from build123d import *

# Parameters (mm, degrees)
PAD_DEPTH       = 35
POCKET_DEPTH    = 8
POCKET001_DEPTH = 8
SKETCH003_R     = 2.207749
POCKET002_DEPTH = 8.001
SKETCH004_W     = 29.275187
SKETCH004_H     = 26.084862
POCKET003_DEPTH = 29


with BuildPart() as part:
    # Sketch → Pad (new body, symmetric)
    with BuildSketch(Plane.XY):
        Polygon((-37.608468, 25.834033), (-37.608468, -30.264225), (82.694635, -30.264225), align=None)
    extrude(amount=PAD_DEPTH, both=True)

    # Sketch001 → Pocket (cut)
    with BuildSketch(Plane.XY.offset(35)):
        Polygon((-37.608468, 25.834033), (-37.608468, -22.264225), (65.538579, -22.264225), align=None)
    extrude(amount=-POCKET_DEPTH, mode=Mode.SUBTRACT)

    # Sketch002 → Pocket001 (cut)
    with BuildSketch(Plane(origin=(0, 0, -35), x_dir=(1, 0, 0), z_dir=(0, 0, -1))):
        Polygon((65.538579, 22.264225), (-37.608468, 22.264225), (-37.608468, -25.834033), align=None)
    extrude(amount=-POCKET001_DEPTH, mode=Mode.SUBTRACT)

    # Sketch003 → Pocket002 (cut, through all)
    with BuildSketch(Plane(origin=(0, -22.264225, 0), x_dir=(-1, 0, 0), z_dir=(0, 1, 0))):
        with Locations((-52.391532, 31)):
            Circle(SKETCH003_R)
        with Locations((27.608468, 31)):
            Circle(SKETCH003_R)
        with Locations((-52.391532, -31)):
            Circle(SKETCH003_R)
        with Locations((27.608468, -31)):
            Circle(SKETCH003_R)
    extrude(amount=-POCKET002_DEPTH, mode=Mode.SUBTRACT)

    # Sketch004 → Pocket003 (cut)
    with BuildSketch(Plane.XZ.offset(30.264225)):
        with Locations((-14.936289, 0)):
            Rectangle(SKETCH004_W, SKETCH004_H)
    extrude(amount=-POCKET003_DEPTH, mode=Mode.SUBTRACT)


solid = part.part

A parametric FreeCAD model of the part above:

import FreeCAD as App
import Part
import Sketcher
from FreeCAD import Vector
Q = App.Units.Quantity


def add_polygon(sketch, points):
    """Adds a closed chain of lines whose ends are joined by coincident constraints."""
    first, n = sketch.GeometryCount, len(points)
    for a, b in zip(points, points[1:] + points[:1]):
        sketch.addGeometry(Part.LineSegment(App.Vector(*a, 0), App.Vector(*b, 0)), False)
    for i in range(n):
        sketch.addConstraint(Sketcher.Constraint("Coincident", first + i, 2, first + (i + 1) % n, 1))

doc = App.newDocument("Part")
body = doc.addObject("PartDesign::Body", "Body")

# Sketch on XY plane
sketch1 = body.newObject("Sketcher::SketchObject", "Sketch")
sketch1.AttachmentSupport = (doc.getObject("XY_Plane"), [""])
sketch1.MapMode = "FlatFace"
add_polygon(sketch1, [(-38, 26), (-38, -30), (83, -30)])  # lines 0-2
sketch1.addConstraint(Sketcher.Constraint("Vertical", 0))
sketch1.addConstraint(Sketcher.Constraint("Horizontal", 1))
sketch1.addConstraint(Sketcher.Constraint("Angle", 2, Q("155 deg")))
sketch1.addConstraint(Sketcher.Constraint("DistanceX", 1, 1, 1, 2, 120.303103))
sketch1.addConstraint(Sketcher.Constraint("DistanceX", 0, 2, -1, 1, 37.608468))
sketch1.addConstraint(Sketcher.Constraint("DistanceY", 0, 2, -1, 1, 30.264225))
pad1 = body.newObject("PartDesign::Pad", "Pad")
pad1.Profile = sketch1
pad1.Length = 70
pad1.Midplane = True

# Sketch on XY plane
sketch2 = body.newObject("Sketcher::SketchObject", "Sketch001")
sketch2.AttachmentSupport = (doc.getObject("XY_Plane"), [""])
sketch2.MapMode = "FlatFace"
sketch2.AttachmentOffset = App.Placement(Vector(0, 0, 35), App.Rotation())
add_polygon(sketch2, [(-38, 26), (-38, -22), (66, -22)])  # lines 0-2
sketch2.addConstraint(Sketcher.Constraint("Vertical", 0))
sketch2.addConstraint(Sketcher.Constraint("Horizontal", 1))
sketch2.addConstraint(Sketcher.Constraint("Angle", 2, Q("155 deg")))
sketch2.addConstraint(Sketcher.Constraint("DistanceX", 1, 1, 1, 2, 103.147047))
sketch2.addConstraint(Sketcher.Constraint("DistanceX", 0, 2, -1, 1, 37.608468))
sketch2.addConstraint(Sketcher.Constraint("DistanceY", 0, 2, -1, 1, 22.264225))
pocket1 = body.newObject("PartDesign::Pocket", "Pocket")
pocket1.Profile = sketch2
pocket1.Length = 8

# Sketch on XY plane
sketch3 = body.newObject("Sketcher::SketchObject", "Sketch002")
sketch3.AttachmentSupport = (doc.getObject("XY_Plane"), [""])
sketch3.MapMode = "FlatFace"
sketch3.AttachmentOffset = App.Placement(Vector(0, 0, -35), App.Rotation())
add_polygon(sketch3, [(66, -22), (-38, -22), (-38, 26)])  # lines 0-2
sketch3.addConstraint(Sketcher.Constraint("Horizontal", 0))
sketch3.addConstraint(Sketcher.Constraint("Vertical", 1))
sketch3.addConstraint(Sketcher.Constraint("Angle", 2, Q("-25 deg")))
sketch3.addConstraint(Sketcher.Constraint("DistanceX", 0, 2, 0, 1, 103.147047))
sketch3.addConstraint(Sketcher.Constraint("DistanceX", 0, 2, -1, 1, 37.608468))
sketch3.addConstraint(Sketcher.Constraint("DistanceY", 0, 2, -1, 1, 22.264225))
pocket2 = body.newObject("PartDesign::Pocket", "Pocket001")
pocket2.Profile = sketch3
pocket2.Length = 8
pocket2.Reversed = True

# Sketch on XZ plane
sketch4 = body.newObject("Sketcher::SketchObject", "Sketch003")
sketch4.AttachmentSupport = (doc.getObject("XZ_Plane"), [""])
sketch4.MapMode = "FlatFace"
sketch4.AttachmentOffset = App.Placement(Vector(0, 0, 22.264225), App.Rotation())
sketch4.addGeometry(Part.Circle(Vector(52.4, 31, 0), Vector(0, 0, 1), 2.2), False)
sketch4.addGeometry(Part.Circle(Vector(-27.6, 31, 0), Vector(0, 0, 1), 2.2), False)
sketch4.addGeometry(Part.Circle(Vector(52.4, -31, 0), Vector(0, 0, 1), 2.2), False)
sketch4.addGeometry(Part.Circle(Vector(-27.6, -31, 0), Vector(0, 0, 1), 2.2), False)
sketch4.addConstraint(Sketcher.Constraint("Equal", 0, 1))
sketch4.addConstraint(Sketcher.Constraint("Equal", 1, 2))
sketch4.addConstraint(Sketcher.Constraint("Equal", 2, 3))
sketch4.addConstraint(Sketcher.Constraint("Symmetric", 0, 3, 2, 3, -1))
sketch4.addConstraint(Sketcher.Constraint("Symmetric", 1, 3, 3, 3, -1))
sketch4.addConstraint(Sketcher.Constraint("Horizontal", 0, 3, 1, 3))
sketch4.addConstraint(Sketcher.Constraint("DistanceY", -1, 1, 0, 3, 31.0))
sketch4.addConstraint(Sketcher.Constraint("DistanceX", 1, 3, 0, 3, 80.0))
sketch4.addConstraint(Sketcher.Constraint("Diameter", 0, 4.415498))
sketch4.addConstraint(Sketcher.Constraint("DistanceX", -1, 1, 0, 3, 52.391532))
pocket3 = body.newObject("PartDesign::Pocket", "Pocket002")
pocket3.Profile = sketch4
pocket3.Type = "ThroughAll"
pocket3.Reversed = True

# Sketch on XZ plane
sketch5 = body.newObject("Sketcher::SketchObject", "Sketch004")
sketch5.AttachmentSupport = (doc.getObject("XZ_Plane"), [""])
sketch5.MapMode = "FlatFace"
sketch5.AttachmentOffset = App.Placement(Vector(0, 0, 30.264225), App.Rotation())
add_polygon(sketch5, [(-30, 13), (-30, -13), (0, -13), (0, 13)])  # lines 0-3
sketch5.addConstraint(Sketcher.Constraint("Vertical", 0))
sketch5.addConstraint(Sketcher.Constraint("Horizontal", 1))
sketch5.addConstraint(Sketcher.Constraint("Vertical", 2))
sketch5.addConstraint(Sketcher.Constraint("Horizontal", 3))
sketch5.addConstraint(Sketcher.Constraint("DistanceX", 1, 1, 1, 2, 29.275187))
sketch5.addConstraint(Sketcher.Constraint("DistanceY", 0, 2, 0, 1, 26.084862))
sketch5.addConstraint(Sketcher.Constraint("DistanceY", 0, 2, -1, 1, 13.042431))
sketch5.addConstraint(Sketcher.Constraint("DistanceX", 0, 2, -1, 1, 29.573882))
pocket4 = body.newObject("PartDesign::Pocket", "Pocket003")
pocket4.Profile = sketch5
pocket4.Length = 29

doc.recompute()
